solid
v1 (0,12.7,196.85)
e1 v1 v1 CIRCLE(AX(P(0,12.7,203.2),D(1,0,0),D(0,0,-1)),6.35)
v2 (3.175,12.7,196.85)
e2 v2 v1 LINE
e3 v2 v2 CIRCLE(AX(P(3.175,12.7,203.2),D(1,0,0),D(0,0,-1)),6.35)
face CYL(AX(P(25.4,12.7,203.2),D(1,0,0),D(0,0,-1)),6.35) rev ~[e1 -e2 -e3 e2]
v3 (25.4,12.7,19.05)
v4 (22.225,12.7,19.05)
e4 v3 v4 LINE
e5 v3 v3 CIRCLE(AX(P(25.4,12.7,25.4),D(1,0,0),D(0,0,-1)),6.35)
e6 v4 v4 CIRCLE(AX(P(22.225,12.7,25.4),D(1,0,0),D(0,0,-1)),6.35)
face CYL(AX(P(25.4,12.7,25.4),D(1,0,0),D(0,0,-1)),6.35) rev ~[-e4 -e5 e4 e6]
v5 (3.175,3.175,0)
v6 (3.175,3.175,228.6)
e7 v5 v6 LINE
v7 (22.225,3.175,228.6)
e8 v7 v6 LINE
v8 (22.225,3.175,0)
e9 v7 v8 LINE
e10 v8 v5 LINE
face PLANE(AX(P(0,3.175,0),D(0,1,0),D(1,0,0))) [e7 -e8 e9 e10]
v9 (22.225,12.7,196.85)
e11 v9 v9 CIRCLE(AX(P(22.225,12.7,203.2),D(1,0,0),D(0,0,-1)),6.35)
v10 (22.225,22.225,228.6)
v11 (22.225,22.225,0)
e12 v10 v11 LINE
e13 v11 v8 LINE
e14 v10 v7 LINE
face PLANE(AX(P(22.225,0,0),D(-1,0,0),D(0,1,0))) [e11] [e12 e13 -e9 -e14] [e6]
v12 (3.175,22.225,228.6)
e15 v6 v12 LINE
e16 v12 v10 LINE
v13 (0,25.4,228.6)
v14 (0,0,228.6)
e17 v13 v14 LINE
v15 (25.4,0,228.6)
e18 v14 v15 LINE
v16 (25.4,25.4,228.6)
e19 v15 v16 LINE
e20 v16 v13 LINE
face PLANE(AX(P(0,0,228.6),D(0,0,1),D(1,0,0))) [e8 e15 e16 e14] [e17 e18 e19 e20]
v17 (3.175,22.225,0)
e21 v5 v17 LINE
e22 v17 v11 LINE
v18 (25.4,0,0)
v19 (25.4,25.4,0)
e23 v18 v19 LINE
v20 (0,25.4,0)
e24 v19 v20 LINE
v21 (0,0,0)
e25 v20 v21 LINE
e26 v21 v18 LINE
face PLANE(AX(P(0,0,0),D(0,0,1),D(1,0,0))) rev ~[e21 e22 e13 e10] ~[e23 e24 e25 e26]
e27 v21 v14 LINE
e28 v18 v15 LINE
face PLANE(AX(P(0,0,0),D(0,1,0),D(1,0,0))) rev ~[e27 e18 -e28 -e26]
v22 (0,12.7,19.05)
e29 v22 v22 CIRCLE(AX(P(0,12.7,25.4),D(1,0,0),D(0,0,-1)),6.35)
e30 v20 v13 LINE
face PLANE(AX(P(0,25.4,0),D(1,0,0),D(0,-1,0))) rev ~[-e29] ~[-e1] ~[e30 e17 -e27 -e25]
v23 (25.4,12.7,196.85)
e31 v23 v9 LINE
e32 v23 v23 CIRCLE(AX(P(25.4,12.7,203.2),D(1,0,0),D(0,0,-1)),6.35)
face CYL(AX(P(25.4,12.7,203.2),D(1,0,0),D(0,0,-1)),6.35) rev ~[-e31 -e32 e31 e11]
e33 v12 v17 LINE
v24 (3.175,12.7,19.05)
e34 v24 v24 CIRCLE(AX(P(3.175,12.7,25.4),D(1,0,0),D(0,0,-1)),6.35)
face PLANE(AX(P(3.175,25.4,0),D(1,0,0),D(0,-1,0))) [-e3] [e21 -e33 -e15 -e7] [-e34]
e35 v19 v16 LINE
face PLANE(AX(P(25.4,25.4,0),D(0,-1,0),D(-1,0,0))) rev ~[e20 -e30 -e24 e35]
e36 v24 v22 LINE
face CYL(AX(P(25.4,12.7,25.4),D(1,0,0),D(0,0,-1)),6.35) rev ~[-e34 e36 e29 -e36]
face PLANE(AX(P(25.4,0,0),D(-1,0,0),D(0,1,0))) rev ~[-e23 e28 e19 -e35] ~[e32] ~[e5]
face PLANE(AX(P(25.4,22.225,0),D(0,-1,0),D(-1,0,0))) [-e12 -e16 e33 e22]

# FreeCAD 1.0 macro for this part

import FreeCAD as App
import Part
import Sketcher
Q = App.Units.Quantity


def faces_at(feature, points):
    """Names of the faces that lie closest to the given points."""
    faces = feature.Shape.Faces
    near = lambda p: min(range(len(faces)), key=lambda i: faces[i].distToShape(Part.Vertex(*p))[0])
    return sorted({f"Face{near(p) + 1}" for p in points})

doc = App.newDocument("Part")
body = doc.addObject("PartDesign::Body", "Body")

sketch1 = body.newObject("Sketcher::SketchObject", "Sketch")
sketch1.AttachmentSupport = (doc.getObject("XY_Plane"), [""])
sketch1.MapMode = "FlatFace"
sketch1.addGeometry([
    Part.LineSegment(App.Vector(0, 25, 0), App.Vector(0, 0, 0)),
    Part.LineSegment(App.Vector(0, 0, 0), App.Vector(25, 0, 0)),
    Part.LineSegment(App.Vector(25, 0, 0), App.Vector(25, 25, 0)),
    Part.LineSegment(App.Vector(25, 25, 0), App.Vector(0, 25, 0)),
], False)
sketch1.addConstraint([
    Sketcher.Constraint("Coincident", 0, 2, 1, 1),
    Sketcher.Constraint("Coincident", 1, 2, 2, 1),
    Sketcher.Constraint("Coincident", 2, 2, 3, 1),
    Sketcher.Constraint("Coincident", 3, 2, 0, 1),
    Sketcher.Constraint("Vertical", 0),
    Sketcher.Constraint("Horizontal", 1),
    Sketcher.Constraint("Vertical", 2),
    Sketcher.Constraint("Horizontal", 3),
    Sketcher.Constraint("Coincident", 0, 2, -1, 1),
    Sketcher.Constraint("Equal", 3, 0),
    Sketcher.Constraint("DistanceX", 1, 1, 1, 2, Q("1 in")),
])
pad1 = body.newObject("PartDesign::Pad", "Pad")
pad1.Profile = sketch1
pad1.Length = Q("9 in")
doc.recompute()

thickness = body.newObject("PartDesign::Thickness", "Thickness")
thickness.Base = (pad1, faces_at(pad1, [(8.467, 16.933, 0), (8.467, 16.933, 228.6)]))
thickness.Value = Q("0.125 in")
thickness.Reversed = True
thickness.Join = "Intersection"

sketch2 = body.newObject("Sketcher::SketchObject", "Sketch001")
sketch2.AttachmentSupport = (doc.getObject("YZ_Plane"), [""])
sketch2.MapMode = "FlatFace"
sketch2.AttachmentOffset = App.Placement(App.Vector(0, 0, 1 * 25.4), App.Rotation())
sketch2.addGeometry([
    Part.Circle(App.Vector(13, 25, 0), App.Vector(0, 0, 1), 6),
    Part.Circle(App.Vector(13, 203, 0), App.Vector(0, 0, 1), 6),
], False)
sketch2.addConstraint([
    Sketcher.Constraint("Equal", 0, 1),
    Sketcher.Constraint("Vertical", 0, 3, 1, 3),
    Sketcher.Constraint("Diameter", 0, Q("0.5 in")),
    Sketcher.Constraint("DistanceY", -1, 1, 0, 3, Q("1 in")),
    Sketcher.Constraint("DistanceX", -1, 1, 0, 3, Q("0.5 in")),
    Sketcher.Constraint("DistanceY", -1, 1, 1, 3, Q("8 in")),
])
pocket1 = body.newObject("PartDesign::Pocket", "Pocket")
pocket1.Profile = sketch2
pocket1.Length = Q("9 in")

doc.recompute()
